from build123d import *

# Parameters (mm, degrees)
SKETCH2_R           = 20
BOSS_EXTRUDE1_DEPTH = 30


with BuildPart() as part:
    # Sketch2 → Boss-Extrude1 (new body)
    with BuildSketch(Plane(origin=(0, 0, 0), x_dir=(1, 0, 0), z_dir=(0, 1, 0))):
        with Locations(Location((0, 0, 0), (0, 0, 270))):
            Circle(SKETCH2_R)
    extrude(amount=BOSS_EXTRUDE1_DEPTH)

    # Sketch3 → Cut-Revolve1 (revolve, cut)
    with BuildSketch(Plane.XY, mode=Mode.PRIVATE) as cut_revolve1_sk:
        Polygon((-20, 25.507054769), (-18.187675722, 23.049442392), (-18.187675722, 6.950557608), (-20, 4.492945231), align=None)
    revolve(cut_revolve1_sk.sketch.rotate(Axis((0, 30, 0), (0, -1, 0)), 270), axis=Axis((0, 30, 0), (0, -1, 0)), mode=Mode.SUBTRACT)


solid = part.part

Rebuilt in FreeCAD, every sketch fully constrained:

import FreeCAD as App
import Part
import Sketcher
from FreeCAD import Vector


def add_polygon(sketch, points):
    """Adds a closed chain of lines whose ends are joined by coincident constraints."""
    first, n = sketch.GeometryCount, len(points)
    for a, b in zip(points, points[1:] + points[:1]):
        sketch.addGeometry(Part.LineSegment(App.Vector(*a, 0), App.Vector(*b, 0)), False)
    for i in range(n):
        sketch.addConstraint(Sketcher.Constraint("Coincident", first + i, 2, first + (i + 1) % n, 1))

doc = App.newDocument("Part")
body = doc.addObject("PartDesign::Body", "Body")

# Sketch on XZ plane
sketch1 = doc.addObject("Sketcher::SketchObject", "Sketch")
body.addObject(sketch1)
sketch1.AttachmentSupport = (doc.XZ_Plane, [""])
sketch1.MapMode = "FlatFace"
sketch1.addGeometry(Part.Circle(Vector(0, 0, 0), Vector(0, 0, 1), 20), False)
sketch1.addConstraint([
    Sketcher.Constraint("Coincident", 0, 3, -1, 1),
    Sketcher.Constraint("Diameter", 0, 40.0),
])
pad1 = doc.addObject("PartDesign::Pad", "Pad")
body.addObject(pad1)
pad1.Profile = sketch1
pad1.Length = 30
pad1.Reversed = True

# Sketch on XY plane
sketch2 = doc.addObject("Sketcher::SketchObject", "Sketch001")
body.addObject(sketch2)
sketch2.AttachmentSupport = (doc.XY_Plane, [""])
sketch2.MapMode = "FlatFace"
add_polygon(sketch2, [(-18.2, 23), (-20, 25.5), (-20, 4.5), (-18.2, 7)])  # lines 0-3
sketch2.addConstraint([
    Sketcher.Constraint("Vertical", 1),
    Sketcher.Constraint("Vertical", 3),
    Sketcher.Constraint("Equal", 0, 2),
    Sketcher.Constraint("DistanceX", 0, 2, -1, 1, 20.0),
    Sketcher.Constraint("DistanceY", 1, 2, 1, 1, 21.01411),
    Sketcher.Constraint("DistanceY", 3, 1, 3, 2, 16.098885),
    Sketcher.Constraint("Distance", 0, 3.053584),
    Sketcher.Constraint("DistanceY", -1, 1, 0, 2, 25.507055),
])
groove = doc.addObject("PartDesign::Groove", "Groove")
body.addObject(groove)
groove.Profile = sketch2
groove.ReferenceAxis = (sketch2, ["V_Axis"])
groove.Angle = 360

doc.recompute()
